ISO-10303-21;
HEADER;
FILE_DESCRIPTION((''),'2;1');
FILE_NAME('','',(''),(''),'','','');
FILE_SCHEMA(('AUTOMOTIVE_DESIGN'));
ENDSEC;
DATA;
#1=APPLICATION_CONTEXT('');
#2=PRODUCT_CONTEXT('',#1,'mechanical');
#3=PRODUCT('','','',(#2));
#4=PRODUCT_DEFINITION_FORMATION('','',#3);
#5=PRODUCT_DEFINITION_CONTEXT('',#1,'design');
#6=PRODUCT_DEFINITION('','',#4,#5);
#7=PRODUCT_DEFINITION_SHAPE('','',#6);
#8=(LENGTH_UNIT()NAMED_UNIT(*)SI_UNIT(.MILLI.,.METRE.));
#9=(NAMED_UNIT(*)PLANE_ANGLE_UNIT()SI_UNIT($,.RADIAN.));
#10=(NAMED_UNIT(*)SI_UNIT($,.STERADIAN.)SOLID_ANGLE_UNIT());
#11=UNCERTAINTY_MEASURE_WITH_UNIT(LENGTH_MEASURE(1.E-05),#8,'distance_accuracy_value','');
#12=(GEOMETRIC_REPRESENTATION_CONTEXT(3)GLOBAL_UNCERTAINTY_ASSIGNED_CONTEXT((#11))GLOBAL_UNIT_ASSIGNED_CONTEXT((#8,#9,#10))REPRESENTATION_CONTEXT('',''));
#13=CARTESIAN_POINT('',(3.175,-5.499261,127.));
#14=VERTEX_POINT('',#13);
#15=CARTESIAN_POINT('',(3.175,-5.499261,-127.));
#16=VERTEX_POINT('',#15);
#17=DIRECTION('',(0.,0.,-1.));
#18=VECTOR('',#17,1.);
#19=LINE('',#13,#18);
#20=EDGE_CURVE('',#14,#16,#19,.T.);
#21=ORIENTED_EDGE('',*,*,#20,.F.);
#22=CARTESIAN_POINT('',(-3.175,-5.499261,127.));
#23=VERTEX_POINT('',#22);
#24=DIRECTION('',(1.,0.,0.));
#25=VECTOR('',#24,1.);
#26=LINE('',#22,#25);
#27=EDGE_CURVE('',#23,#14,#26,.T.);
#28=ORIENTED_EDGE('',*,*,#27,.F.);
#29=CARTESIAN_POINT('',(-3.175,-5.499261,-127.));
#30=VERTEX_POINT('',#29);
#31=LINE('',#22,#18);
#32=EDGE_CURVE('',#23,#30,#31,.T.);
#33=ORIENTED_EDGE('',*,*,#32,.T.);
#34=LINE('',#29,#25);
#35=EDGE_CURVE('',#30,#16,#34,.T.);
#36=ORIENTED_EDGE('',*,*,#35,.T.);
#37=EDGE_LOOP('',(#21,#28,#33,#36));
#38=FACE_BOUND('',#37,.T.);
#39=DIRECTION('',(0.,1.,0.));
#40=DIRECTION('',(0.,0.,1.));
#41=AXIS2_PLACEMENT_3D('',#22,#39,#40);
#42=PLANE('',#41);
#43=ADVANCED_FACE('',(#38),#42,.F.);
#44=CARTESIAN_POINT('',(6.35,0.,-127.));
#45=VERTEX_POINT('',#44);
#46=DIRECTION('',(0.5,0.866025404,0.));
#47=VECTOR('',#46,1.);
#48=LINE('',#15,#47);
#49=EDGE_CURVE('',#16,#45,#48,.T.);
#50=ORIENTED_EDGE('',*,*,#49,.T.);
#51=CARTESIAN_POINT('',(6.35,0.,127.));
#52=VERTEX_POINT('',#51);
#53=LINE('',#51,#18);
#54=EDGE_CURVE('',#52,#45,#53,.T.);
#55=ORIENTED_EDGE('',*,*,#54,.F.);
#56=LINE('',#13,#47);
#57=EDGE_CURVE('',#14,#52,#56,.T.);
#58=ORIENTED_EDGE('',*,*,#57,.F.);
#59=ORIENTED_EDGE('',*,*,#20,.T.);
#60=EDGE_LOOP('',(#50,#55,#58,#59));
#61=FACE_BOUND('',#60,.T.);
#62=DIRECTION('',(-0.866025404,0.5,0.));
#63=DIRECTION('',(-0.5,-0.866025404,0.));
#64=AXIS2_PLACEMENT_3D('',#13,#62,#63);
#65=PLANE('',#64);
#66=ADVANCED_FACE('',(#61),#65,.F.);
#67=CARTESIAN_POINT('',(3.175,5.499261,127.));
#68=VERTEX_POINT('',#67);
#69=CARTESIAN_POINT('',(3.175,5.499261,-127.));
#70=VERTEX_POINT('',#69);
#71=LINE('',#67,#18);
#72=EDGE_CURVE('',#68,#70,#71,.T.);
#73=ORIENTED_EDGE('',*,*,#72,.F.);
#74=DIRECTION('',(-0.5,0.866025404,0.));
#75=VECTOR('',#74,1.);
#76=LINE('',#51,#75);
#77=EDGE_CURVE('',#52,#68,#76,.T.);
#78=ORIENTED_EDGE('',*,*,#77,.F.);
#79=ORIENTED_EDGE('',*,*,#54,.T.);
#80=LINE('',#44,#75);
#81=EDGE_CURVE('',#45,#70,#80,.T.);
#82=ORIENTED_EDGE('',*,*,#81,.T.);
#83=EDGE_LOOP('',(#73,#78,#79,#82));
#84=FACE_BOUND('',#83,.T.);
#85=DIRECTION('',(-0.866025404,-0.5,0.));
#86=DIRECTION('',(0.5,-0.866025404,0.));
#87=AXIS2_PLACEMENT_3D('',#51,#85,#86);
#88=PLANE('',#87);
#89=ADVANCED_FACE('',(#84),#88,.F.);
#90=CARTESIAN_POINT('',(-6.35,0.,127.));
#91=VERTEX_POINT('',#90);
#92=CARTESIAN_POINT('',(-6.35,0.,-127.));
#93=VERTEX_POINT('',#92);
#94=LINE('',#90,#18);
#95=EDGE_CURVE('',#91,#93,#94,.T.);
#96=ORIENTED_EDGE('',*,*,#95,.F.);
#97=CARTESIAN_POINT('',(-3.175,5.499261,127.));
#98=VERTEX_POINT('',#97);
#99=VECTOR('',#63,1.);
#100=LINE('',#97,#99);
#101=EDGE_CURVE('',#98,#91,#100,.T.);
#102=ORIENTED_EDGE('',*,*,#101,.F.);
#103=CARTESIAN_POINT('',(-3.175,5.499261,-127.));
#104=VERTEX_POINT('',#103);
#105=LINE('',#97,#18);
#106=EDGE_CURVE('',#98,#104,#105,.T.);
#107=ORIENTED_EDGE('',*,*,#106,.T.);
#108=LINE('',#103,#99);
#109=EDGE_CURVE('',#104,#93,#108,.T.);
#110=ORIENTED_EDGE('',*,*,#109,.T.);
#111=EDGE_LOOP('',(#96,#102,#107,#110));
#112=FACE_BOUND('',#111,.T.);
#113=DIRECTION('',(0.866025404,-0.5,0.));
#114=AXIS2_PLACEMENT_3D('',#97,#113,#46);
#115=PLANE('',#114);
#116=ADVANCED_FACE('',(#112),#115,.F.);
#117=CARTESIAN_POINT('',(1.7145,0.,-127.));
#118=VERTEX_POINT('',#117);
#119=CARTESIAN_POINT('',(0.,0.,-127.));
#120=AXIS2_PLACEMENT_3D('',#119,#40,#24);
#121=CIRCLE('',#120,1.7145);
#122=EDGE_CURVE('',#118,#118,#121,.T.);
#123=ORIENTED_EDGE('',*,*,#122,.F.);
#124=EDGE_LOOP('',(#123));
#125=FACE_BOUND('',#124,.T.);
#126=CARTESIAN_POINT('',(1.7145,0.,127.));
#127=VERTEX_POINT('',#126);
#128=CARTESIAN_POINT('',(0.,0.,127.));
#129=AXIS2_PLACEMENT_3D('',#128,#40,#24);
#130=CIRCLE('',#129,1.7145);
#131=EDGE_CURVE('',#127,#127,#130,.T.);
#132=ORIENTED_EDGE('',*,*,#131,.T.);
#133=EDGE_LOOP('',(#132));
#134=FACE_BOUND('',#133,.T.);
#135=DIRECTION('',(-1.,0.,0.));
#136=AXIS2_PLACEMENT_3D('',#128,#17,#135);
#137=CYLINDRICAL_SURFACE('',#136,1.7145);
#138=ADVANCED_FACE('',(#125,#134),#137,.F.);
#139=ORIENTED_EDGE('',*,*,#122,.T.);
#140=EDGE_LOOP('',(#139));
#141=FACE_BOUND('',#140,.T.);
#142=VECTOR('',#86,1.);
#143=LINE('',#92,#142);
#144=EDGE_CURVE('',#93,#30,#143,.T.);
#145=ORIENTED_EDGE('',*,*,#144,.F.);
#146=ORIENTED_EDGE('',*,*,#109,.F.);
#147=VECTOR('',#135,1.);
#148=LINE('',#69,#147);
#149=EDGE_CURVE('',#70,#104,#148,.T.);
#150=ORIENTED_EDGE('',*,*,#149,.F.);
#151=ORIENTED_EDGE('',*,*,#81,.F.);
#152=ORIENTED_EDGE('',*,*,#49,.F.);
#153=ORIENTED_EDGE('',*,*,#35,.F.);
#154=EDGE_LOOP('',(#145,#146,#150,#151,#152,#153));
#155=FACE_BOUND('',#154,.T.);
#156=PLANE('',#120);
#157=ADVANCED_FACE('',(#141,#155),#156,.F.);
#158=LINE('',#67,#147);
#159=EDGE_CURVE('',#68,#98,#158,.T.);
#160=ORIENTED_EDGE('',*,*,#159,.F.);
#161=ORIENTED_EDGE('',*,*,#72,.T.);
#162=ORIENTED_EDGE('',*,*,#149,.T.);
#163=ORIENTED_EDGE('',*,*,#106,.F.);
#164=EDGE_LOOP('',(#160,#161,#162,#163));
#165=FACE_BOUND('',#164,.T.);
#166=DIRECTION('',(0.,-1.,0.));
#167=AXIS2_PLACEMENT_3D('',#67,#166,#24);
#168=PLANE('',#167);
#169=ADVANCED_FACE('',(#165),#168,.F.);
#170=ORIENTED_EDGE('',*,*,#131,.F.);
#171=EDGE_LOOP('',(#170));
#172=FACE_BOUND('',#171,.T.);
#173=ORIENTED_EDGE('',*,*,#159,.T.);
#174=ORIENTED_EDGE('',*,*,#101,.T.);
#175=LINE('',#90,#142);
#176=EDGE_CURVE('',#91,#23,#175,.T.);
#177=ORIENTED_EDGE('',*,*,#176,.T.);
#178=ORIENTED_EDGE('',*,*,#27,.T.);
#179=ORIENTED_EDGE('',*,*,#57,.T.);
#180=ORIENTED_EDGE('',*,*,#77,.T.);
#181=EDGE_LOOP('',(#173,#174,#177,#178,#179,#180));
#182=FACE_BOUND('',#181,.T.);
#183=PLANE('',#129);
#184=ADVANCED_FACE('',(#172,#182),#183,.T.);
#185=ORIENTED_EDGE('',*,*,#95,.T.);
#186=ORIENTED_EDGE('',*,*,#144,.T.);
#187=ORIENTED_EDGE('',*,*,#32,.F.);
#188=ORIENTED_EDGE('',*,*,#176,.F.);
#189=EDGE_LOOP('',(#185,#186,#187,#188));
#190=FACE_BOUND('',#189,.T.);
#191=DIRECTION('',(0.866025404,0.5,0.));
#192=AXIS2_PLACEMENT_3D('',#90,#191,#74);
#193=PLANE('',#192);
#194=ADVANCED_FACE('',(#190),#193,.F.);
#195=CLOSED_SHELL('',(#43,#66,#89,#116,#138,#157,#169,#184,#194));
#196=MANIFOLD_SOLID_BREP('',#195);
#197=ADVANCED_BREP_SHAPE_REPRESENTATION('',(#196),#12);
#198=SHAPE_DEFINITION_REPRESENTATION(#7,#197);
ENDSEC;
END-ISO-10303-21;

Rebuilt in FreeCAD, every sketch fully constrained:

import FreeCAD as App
import Part
import Sketcher
from FreeCAD import Vector
Q = App.Units.Quantity

doc = App.newDocument("Part")
params = doc.addObject("Spreadsheet::Sheet", "Params")
for row, (alias, value) in enumerate([
    ("sketch1_diameter", "0.135 in"),
    ("sketch1_width", "0.25 in"),
    ("sketch1_length", "0.25 in"),
    ("pad1_length", "10 in"),
], start=1):
    params.set(f"A{row}", alias)
    params.set(f"B{row}", "=" + value)
    params.setAlias(f"B{row}", alias)

body = doc.addObject("PartDesign::Body", "Body")

sketch1 = doc.addObject("Sketcher::SketchObject", "Sketch")
body.addObject(sketch1)
sketch1.AttachmentSupport = (doc.XY_Plane, [""])
sketch1.MapMode = "FlatFace"
sketch1.addGeometry([
    Part.LineSegment(Vector(6.3, 0, 0), Vector(3.2, 5.5, 0)),
    Part.LineSegment(Vector(3.2, 5.5, 0), Vector(-3.2, 5.5, 0)),
    Part.LineSegment(Vector(-3.2, 5.5, 0), Vector(-6.3, 0, 0)),
    Part.LineSegment(Vector(-6.3, 0, 0), Vector(-3.2, -5.5, 0)),
    Part.LineSegment(Vector(-3.2, -5.5, 0), Vector(3.2, -5.5, 0)),
    Part.LineSegment(Vector(3.2, -5.5, 0), Vector(6.3, 0, 0)),
    Part.Circle(Vector(0, 0, 0), Vector(0, 0, 1), 1.7),
], False)
sketch1.addConstraint([
    Sketcher.Constraint("Coincident", 0, 2, 1, 1),
    Sketcher.Constraint("Coincident", 1, 2, 2, 1),
    Sketcher.Constraint("Coincident", 2, 2, 3, 1),
    Sketcher.Constraint("Coincident", 3, 2, 4, 1),
    Sketcher.Constraint("Coincident", 4, 2, 5, 1),
    Sketcher.Constraint("Coincident", 5, 2, 0, 1),
    Sketcher.Constraint("Horizontal", 1),
    Sketcher.Constraint("Horizontal", 4),
    Sketcher.Constraint("Coincident", 6, 3, -1, 1),
    Sketcher.Constraint("Symmetric", 0, 2, 3, 2, -1, 1),
    Sketcher.Constraint("Symmetric", 2, 2, 5, 2, -1, 1),
    Sketcher.Constraint("PointOnObject", 2, 2, -1),
    Sketcher.Constraint("Parallel", 2, 5),
    Sketcher.Constraint("Vertical", 1, 2, 3, 2),
    Sketcher.Constraint("Diameter", 6, Q("0.135 in")),
    Sketcher.Constraint("Angle", 0, Q("120 deg")),
    Sketcher.Constraint("DistanceX", 1, 2, 1, 1, Q("0.25 in")),
    Sketcher.Constraint("Distance", 0, Q("0.25 in")),
])
sketch1.setExpression("Constraints[14]", "Params.sketch1_diameter")
sketch1.setExpression("Constraints[16]", "Params.sketch1_width")
sketch1.setExpression("Constraints[17]", "Params.sketch1_length")
pad1 = doc.addObject("PartDesign::Pad", "Pad")
body.addObject(pad1)
pad1.Profile = sketch1
pad1.setExpression("Length", "Params.pad1_length")
pad1.Midplane = True

doc.recompute()
